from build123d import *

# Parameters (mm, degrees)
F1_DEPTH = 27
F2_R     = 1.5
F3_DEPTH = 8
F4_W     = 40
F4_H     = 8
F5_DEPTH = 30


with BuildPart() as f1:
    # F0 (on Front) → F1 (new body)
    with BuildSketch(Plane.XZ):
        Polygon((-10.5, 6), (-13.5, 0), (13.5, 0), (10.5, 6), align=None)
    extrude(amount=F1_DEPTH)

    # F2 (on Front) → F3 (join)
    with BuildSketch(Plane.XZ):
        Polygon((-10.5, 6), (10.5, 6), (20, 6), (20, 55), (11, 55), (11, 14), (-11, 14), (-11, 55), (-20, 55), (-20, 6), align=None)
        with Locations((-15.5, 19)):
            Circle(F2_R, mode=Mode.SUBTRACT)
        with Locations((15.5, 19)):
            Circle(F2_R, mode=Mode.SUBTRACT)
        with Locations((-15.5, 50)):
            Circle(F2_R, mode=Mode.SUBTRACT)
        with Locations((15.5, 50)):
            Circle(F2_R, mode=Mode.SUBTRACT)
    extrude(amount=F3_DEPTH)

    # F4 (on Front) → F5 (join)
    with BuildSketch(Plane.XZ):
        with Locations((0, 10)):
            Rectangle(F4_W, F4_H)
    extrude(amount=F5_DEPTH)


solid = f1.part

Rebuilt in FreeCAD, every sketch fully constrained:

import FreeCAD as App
import Part
import Sketcher
from FreeCAD import Vector
Q = App.Units.Quantity


def add_polygon(sketch, points):
    """Adds a closed chain of lines whose ends are joined by coincident constraints."""
    first, n = sketch.GeometryCount, len(points)
    for a, b in zip(points, points[1:] + points[:1]):
        sketch.addGeometry(Part.LineSegment(App.Vector(*a, 0), App.Vector(*b, 0)), False)
    for i in range(n):
        sketch.addConstraint(Sketcher.Constraint("Coincident", first + i, 2, first + (i + 1) % n, 1))

doc = App.newDocument("Part")
body = doc.addObject("PartDesign::Body", "Body")

sketch1 = body.newObject("Sketcher::SketchObject", "Sketch")
sketch1.AttachmentSupport = (doc.getObject("XZ_Plane"), [""])
sketch1.MapMode = "FlatFace"
add_polygon(sketch1, [(-10, 6), (-14, 0), (14, 0), (10, 6)])
sketch1.addConstraint(Sketcher.Constraint("Horizontal", 1))
sketch1.addConstraint(Sketcher.Constraint("Horizontal", 3))
sketch1.addConstraint(Sketcher.Constraint("Symmetric", 0, 2, 1, 2, -1, 1))
sketch1.addConstraint(Sketcher.Constraint("Equal", 0, 2))
sketch1.addConstraint(Sketcher.Constraint("DistanceX", 1, 1, 1, 2, Q("27 mm")))
sketch1.addConstraint(Sketcher.Constraint("DistanceX", 3, 2, 3, 1, Q("21 mm")))
sketch1.addConstraint(Sketcher.Constraint("DistanceY", -1, 1, 2, 2, Q("6 mm")))
pad1 = body.newObject("PartDesign::Pad", "Pad")
pad1.Profile = sketch1
pad1.Length = 27

sketch2 = body.newObject("Sketcher::SketchObject", "Sketch001")
sketch2.AttachmentSupport = (doc.getObject("XZ_Plane"), [""])
sketch2.MapMode = "FlatFace"
add_polygon(sketch2, [(20, 6), (20, 55), (11, 55), (11, 14), (-11, 14), (-11, 55), (-20, 55), (-20, 6)])
sketch2.addGeometry(Part.Circle(Vector(-15.5, 19, 0), Vector(0, 0, 1), 1.5), False)
sketch2.addGeometry(Part.Circle(Vector(15.5, 19, 0), Vector(0, 0, 1), 1.5), False)
sketch2.addGeometry(Part.Circle(Vector(-15.5, 50, 0), Vector(0, 0, 1), 1.5), False)
sketch2.addGeometry(Part.Circle(Vector(15.5, 50, 0), Vector(0, 0, 1), 1.5), False)
sketch2.addConstraint(Sketcher.Constraint("Vertical", 0))
sketch2.addConstraint(Sketcher.Constraint("Horizontal", 1))
sketch2.addConstraint(Sketcher.Constraint("Vertical", 2))
sketch2.addConstraint(Sketcher.Constraint("Horizontal", 3))
sketch2.addConstraint(Sketcher.Constraint("Vertical", 4))
sketch2.addConstraint(Sketcher.Constraint("Horizontal", 5))
sketch2.addConstraint(Sketcher.Constraint("Vertical", 6))
sketch2.addConstraint(Sketcher.Constraint("Horizontal", 7))
sketch2.addConstraint(Sketcher.Constraint("Equal", 8, 9))
sketch2.addConstraint(Sketcher.Constraint("Equal", 9, 10))
sketch2.addConstraint(Sketcher.Constraint("Equal", 10, 11))
sketch2.addConstraint(Sketcher.Constraint("Symmetric", 8, 3, 9, 3, -2))
sketch2.addConstraint(Sketcher.Constraint("Symmetric", 10, 3, 11, 3, -2))
sketch2.addConstraint(Sketcher.Constraint("Symmetric", 1, 2, 4, 2, -2))
sketch2.addConstraint(Sketcher.Constraint("Vertical", 8, 3, 10, 3))
sketch2.addConstraint(Sketcher.Constraint("Equal", 1, 5))
sketch2.addConstraint(Sketcher.Constraint("Diameter", 8, Q("3 mm")))
sketch2.addConstraint(Sketcher.Constraint("DistanceX", 1, 2, 1, 1, Q("9 mm")))
sketch2.addConstraint(Sketcher.Constraint("DistanceX", 3, 2, 3, 1, Q("22 mm")))
sketch2.addConstraint(Sketcher.Constraint("DistanceY", 0, 1, 0, 2, Q("49 mm")))
sketch2.addConstraint(Sketcher.Constraint("DistanceY", 2, 2, 2, 1, Q("41 mm")))
sketch2.addConstraint(Sketcher.Constraint("DistanceY", -1, 1, 8, 3, Q("19 mm")))
sketch2.addConstraint(Sketcher.Constraint("DistanceY", -1, 1, 10, 3, Q("50 mm")))
sketch2.addConstraint(Sketcher.Constraint("DistanceY", -1, 1, 0, 2, Q("55 mm")))
sketch2.addConstraint(Sketcher.Constraint("DistanceX", 8, 3, 9, 3, Q("31 mm")))
pad2 = body.newObject("PartDesign::Pad", "Pad001")
pad2.Profile = sketch2
pad2.Length = 8

sketch3 = body.newObject("Sketcher::SketchObject", "Sketch002")
sketch3.AttachmentSupport = (doc.getObject("XZ_Plane"), [""])
sketch3.MapMode = "FlatFace"
add_polygon(sketch3, [(-20, 14), (-20, 6), (20, 6), (20, 14)])
sketch3.addConstraint(Sketcher.Constraint("Vertical", 0))
sketch3.addConstraint(Sketcher.Constraint("Horizontal", 1))
sketch3.addConstraint(Sketcher.Constraint("Vertical", 2))
sketch3.addConstraint(Sketcher.Constraint("Horizontal", 3))
sketch3.addConstraint(Sketcher.Constraint("DistanceX", 1, 1, 1, 2, Q("40 mm")))
sketch3.addConstraint(Sketcher.Constraint("DistanceY", 0, 2, 0, 1, Q("8 mm")))
sketch3.addConstraint(Sketcher.Constraint("DistanceX", 0, 2, -1, 1, Q("20 mm")))
sketch3.addConstraint(Sketcher.Constraint("DistanceY", -1, 1, 0, 2, Q("6 mm")))
pad3 = body.newObject("PartDesign::Pad", "Pad002")
pad3.Profile = sketch3
pad3.Length = 30

doc.recompute()
